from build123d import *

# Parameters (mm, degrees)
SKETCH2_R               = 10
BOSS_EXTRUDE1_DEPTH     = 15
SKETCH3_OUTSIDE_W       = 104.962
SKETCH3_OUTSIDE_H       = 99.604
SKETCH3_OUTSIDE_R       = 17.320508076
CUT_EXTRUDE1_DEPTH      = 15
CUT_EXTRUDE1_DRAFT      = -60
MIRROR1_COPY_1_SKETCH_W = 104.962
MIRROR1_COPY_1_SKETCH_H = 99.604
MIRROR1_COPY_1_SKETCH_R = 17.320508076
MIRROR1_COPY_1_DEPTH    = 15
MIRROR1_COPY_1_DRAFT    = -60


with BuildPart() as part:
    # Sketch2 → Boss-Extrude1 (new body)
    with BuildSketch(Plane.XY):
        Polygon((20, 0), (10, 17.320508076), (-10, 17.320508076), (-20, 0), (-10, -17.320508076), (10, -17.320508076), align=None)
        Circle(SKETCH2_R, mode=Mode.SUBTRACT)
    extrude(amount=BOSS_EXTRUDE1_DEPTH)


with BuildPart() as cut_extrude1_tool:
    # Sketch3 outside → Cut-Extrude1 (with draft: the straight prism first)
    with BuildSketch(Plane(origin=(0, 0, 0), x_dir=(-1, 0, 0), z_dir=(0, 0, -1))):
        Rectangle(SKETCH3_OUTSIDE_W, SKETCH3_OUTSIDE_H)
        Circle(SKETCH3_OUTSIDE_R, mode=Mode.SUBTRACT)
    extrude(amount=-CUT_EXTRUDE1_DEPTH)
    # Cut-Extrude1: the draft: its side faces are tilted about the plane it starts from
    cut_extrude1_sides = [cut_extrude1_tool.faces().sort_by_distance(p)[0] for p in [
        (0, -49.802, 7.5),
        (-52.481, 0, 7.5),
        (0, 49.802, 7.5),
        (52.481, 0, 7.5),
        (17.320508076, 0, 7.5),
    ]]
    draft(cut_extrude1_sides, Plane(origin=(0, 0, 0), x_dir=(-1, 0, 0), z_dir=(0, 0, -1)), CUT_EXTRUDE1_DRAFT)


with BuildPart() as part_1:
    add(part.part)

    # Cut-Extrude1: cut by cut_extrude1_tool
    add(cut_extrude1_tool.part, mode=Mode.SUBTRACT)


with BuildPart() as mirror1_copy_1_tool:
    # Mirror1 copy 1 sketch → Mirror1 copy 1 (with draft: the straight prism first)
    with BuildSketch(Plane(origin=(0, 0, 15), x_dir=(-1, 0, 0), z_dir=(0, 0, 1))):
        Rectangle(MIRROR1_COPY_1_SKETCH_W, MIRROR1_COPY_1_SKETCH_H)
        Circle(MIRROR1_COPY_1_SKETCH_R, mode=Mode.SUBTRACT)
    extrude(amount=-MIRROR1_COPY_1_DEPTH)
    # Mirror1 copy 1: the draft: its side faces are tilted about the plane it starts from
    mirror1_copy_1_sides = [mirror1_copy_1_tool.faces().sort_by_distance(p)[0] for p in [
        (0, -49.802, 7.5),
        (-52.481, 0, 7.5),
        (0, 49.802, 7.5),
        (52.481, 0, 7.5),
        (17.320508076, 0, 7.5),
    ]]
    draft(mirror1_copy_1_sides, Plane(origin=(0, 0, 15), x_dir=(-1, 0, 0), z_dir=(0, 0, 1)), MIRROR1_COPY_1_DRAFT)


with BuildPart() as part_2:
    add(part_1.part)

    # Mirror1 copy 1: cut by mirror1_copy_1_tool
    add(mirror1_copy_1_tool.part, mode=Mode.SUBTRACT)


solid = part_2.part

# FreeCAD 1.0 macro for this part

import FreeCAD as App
import Part
import Sketcher

V = App.Vector
Q = App.Units.Quantity


def faces_at(feature, points):
    """Names of the faces that lie closest to the given points."""
    faces = feature.Shape.Faces
    near = lambda p: min(range(len(faces)), key=lambda i: faces[i].distToShape(Part.Vertex(*p))[0])
    return sorted({f"Face{near(p) + 1}" for p in points})


def add_polygon(sketch, points):
    """Adds a closed chain of lines whose ends are joined by coincident constraints."""
    first, n = sketch.GeometryCount, len(points)
    for a, b in zip(points, points[1:] + points[:1]):
        sketch.addGeometry(Part.LineSegment(App.Vector(*a, 0), App.Vector(*b, 0)), False)
    for i in range(n):
        sketch.addConstraint(Sketcher.Constraint("Coincident", first + i, 2, first + (i + 1) % n, 1))

doc = App.newDocument("Part")
params = doc.addObject("Spreadsheet::Sheet", "Params")
for row, (alias, value) in enumerate([
    ("sketch1_diameter", "20 mm"),
    ("sketch1_width", "20 mm"),
    ("sketch1_length", "20 mm"),
    ("pad1_length", "15 mm"),
    ("pad2_length", "15 mm"),
    ("draft_angle", "60 deg"),
    ("pad3_length", "15 mm"),
    ("draft2_angle", "60 deg"),
], start=1):
    params.set(f"A{row}", alias)
    params.set(f"B{row}", "=" + value)
    params.setAlias(f"B{row}", alias)

body = doc.addObject("PartDesign::Body", "Body")

# Sketch on XY plane
sketch1 = body.newObject("Sketcher::SketchObject", "Sketch")
sketch1.AttachmentSupport = (doc.getObject("XY_Plane"), [""])
sketch1.MapMode = "FlatFace"
add_polygon(sketch1, [(20, 0), (10, 17), (-10, 17), (-20, 0), (-10, -17), (10, -17)])  # lines 0-5
sketch1.addGeometry(Part.Circle(V(0, 0, 0), V(0, 0, 1), 10), False)  # 6
sketch1.addConstraint(Sketcher.Constraint("Horizontal", 1))
sketch1.addConstraint(Sketcher.Constraint("Horizontal", 4))
sketch1.addConstraint(Sketcher.Constraint("Coincident", 6, 3, -1, 1))
sketch1.addConstraint(Sketcher.Constraint("Symmetric", 0, 2, 3, 2, -1, 1))
sketch1.addConstraint(Sketcher.Constraint("Symmetric", 2, 2, 5, 2, -1, 1))
sketch1.addConstraint(Sketcher.Constraint("PointOnObject", 2, 2, -1))
sketch1.addConstraint(Sketcher.Constraint("Parallel", 2, 5))
sketch1.addConstraint(Sketcher.Constraint("Vertical", 1, 2, 3, 2))
sketch1.addConstraint(Sketcher.Constraint("Diameter", 6, Q("20 mm")))
sketch1.addConstraint(Sketcher.Constraint("DistanceX", 1, 2, 1, 1, Q("20 mm")))
sketch1.addConstraint(Sketcher.Constraint("Angle", 0, Q("120 deg")))
sketch1.addConstraint(Sketcher.Constraint("Distance", 0, Q("20 mm")))
sketch1.setExpression("Constraints[14]", "Params.sketch1_diameter")
sketch1.setExpression("Constraints[15]", "Params.sketch1_width")
sketch1.setExpression("Constraints[17]", "Params.sketch1_length")
pad1 = body.newObject("PartDesign::Pad", "Pad")
pad1.Profile = sketch1
pad1.setExpression("Length", "Params.pad1_length")
body2 = doc.addObject("PartDesign::Body", "Body001")

# Sketch on XY plane
sketch2 = body2.newObject("Sketcher::SketchObject", "Sketch001")
sketch2.AttachmentSupport = (doc.getObject("XY_Plane001"), [""])
sketch2.MapMode = "FlatFace"
add_polygon(sketch2, [(52, 50), (52, -50), (-52, -50), (-52, 50)])  # lines 0-3
sketch2.addGeometry(Part.Circle(V(0, 0, 0), V(0, 0, 1), 17), False)  # 4
sketch2.addConstraint(Sketcher.Constraint("Vertical", 0))
sketch2.addConstraint(Sketcher.Constraint("Horizontal", 1))
sketch2.addConstraint(Sketcher.Constraint("Vertical", 2))
sketch2.addConstraint(Sketcher.Constraint("Horizontal", 3))
sketch2.addConstraint(Sketcher.Constraint("Coincident", 4, 3, -1, 1))
sketch2.addConstraint(Sketcher.Constraint("Symmetric", 0, 2, 2, 2, -1, 1))
sketch2.addConstraint(Sketcher.Constraint("DistanceX", 1, 2, 1, 1, Q("104.962 mm")))
sketch2.addConstraint(Sketcher.Constraint("DistanceY", 0, 2, 0, 1, Q("99.604 mm")))
sketch2.addConstraint(Sketcher.Constraint("Diameter", 4, Q("34.641016 mm")))
pad2 = body2.newObject("PartDesign::Pad", "Pad001")
pad2.Profile = sketch2
pad2.setExpression("Length", "Params.pad2_length")
doc.recompute()

draft = body2.newObject("PartDesign::Draft", "Draft")
draft.Base = (pad2, faces_at(pad2, [
    (0, -49.802, 7.5),
    (-52.481, 0, 7.5),
    (0, 49.802, 7.5),
    (52.481, 0, 7.5),
    (17.321, 0, 7.5),
]))
draft.NeutralPlane = (doc.getObject("XY_Plane001"), [""])
draft.setExpression("Angle", "Params.draft_angle")
draft.Reversed = False
doc.recompute()

boolean = body.newObject("PartDesign::Boolean", "Boolean")
boolean.Type = "Cut"
boolean.addObjects([body2])
body3 = doc.addObject("PartDesign::Body", "Body002")

# Sketch on XY plane
sketch3 = body3.newObject("Sketcher::SketchObject", "Sketch002")
sketch3.AttachmentSupport = (doc.getObject("XY_Plane002"), [""])
sketch3.MapMode = "FlatFace"
sketch3.AttachmentOffset = App.Placement(V(0, 0, 15), App.Rotation())
add_polygon(sketch3, [(52, -50), (52, 50), (-52, 50), (-52, -50)])  # lines 0-3
sketch3.addGeometry(Part.Circle(V(0, 0, 0), V(0, 0, 1), 17), False)  # 4
sketch3.addConstraint(Sketcher.Constraint("Vertical", 0))
sketch3.addConstraint(Sketcher.Constraint("Horizontal", 1))
sketch3.addConstraint(Sketcher.Constraint("Vertical", 2))
sketch3.addConstraint(Sketcher.Constraint("Horizontal", 3))
sketch3.addConstraint(Sketcher.Constraint("Coincident", 4, 3, -1, 1))
sketch3.addConstraint(Sketcher.Constraint("Symmetric", 0, 2, 2, 2, -1, 1))
sketch3.addConstraint(Sketcher.Constraint("DistanceX", 1, 2, 1, 1, Q("104.962 mm")))
sketch3.addConstraint(Sketcher.Constraint("DistanceY", 0, 1, 0, 2, Q("99.604 mm")))
sketch3.addConstraint(Sketcher.Constraint("Diameter", 4, Q("34.641016 mm")))
pad3 = body3.newObject("PartDesign::Pad", "Pad002")
pad3.Profile = sketch3
pad3.setExpression("Length", "Params.pad3_length")
pad3.Reversed = True
doc.recompute()

datumplane = body3.newObject("PartDesign::Plane", "DatumPlane")
datumplane.AttachmentSupport = (doc.getObject("XY_Plane002"), [""])
datumplane.MapMode = "FlatFace"
datumplane.AttachmentOffset = App.Placement(V(0, 0, 15), App.Rotation())
draft2 = body3.newObject("PartDesign::Draft", "Draft001")
draft2.Base = (pad3, faces_at(pad3, [
    (0, -49.802, 7.5),
    (-52.481, 0, 7.5),
    (0, 49.802, 7.5),
    (52.481, 0, 7.5),
    (17.321, 0, 7.5),
]))
draft2.NeutralPlane = (datumplane, [""])
draft2.setExpression("Angle", "Params.draft2_angle")
draft2.Reversed = True
doc.recompute()

boolean2 = body.newObject("PartDesign::Boolean", "Boolean001")
boolean2.Type = "Cut"
boolean2.addObjects([body3])

doc.recompute()
